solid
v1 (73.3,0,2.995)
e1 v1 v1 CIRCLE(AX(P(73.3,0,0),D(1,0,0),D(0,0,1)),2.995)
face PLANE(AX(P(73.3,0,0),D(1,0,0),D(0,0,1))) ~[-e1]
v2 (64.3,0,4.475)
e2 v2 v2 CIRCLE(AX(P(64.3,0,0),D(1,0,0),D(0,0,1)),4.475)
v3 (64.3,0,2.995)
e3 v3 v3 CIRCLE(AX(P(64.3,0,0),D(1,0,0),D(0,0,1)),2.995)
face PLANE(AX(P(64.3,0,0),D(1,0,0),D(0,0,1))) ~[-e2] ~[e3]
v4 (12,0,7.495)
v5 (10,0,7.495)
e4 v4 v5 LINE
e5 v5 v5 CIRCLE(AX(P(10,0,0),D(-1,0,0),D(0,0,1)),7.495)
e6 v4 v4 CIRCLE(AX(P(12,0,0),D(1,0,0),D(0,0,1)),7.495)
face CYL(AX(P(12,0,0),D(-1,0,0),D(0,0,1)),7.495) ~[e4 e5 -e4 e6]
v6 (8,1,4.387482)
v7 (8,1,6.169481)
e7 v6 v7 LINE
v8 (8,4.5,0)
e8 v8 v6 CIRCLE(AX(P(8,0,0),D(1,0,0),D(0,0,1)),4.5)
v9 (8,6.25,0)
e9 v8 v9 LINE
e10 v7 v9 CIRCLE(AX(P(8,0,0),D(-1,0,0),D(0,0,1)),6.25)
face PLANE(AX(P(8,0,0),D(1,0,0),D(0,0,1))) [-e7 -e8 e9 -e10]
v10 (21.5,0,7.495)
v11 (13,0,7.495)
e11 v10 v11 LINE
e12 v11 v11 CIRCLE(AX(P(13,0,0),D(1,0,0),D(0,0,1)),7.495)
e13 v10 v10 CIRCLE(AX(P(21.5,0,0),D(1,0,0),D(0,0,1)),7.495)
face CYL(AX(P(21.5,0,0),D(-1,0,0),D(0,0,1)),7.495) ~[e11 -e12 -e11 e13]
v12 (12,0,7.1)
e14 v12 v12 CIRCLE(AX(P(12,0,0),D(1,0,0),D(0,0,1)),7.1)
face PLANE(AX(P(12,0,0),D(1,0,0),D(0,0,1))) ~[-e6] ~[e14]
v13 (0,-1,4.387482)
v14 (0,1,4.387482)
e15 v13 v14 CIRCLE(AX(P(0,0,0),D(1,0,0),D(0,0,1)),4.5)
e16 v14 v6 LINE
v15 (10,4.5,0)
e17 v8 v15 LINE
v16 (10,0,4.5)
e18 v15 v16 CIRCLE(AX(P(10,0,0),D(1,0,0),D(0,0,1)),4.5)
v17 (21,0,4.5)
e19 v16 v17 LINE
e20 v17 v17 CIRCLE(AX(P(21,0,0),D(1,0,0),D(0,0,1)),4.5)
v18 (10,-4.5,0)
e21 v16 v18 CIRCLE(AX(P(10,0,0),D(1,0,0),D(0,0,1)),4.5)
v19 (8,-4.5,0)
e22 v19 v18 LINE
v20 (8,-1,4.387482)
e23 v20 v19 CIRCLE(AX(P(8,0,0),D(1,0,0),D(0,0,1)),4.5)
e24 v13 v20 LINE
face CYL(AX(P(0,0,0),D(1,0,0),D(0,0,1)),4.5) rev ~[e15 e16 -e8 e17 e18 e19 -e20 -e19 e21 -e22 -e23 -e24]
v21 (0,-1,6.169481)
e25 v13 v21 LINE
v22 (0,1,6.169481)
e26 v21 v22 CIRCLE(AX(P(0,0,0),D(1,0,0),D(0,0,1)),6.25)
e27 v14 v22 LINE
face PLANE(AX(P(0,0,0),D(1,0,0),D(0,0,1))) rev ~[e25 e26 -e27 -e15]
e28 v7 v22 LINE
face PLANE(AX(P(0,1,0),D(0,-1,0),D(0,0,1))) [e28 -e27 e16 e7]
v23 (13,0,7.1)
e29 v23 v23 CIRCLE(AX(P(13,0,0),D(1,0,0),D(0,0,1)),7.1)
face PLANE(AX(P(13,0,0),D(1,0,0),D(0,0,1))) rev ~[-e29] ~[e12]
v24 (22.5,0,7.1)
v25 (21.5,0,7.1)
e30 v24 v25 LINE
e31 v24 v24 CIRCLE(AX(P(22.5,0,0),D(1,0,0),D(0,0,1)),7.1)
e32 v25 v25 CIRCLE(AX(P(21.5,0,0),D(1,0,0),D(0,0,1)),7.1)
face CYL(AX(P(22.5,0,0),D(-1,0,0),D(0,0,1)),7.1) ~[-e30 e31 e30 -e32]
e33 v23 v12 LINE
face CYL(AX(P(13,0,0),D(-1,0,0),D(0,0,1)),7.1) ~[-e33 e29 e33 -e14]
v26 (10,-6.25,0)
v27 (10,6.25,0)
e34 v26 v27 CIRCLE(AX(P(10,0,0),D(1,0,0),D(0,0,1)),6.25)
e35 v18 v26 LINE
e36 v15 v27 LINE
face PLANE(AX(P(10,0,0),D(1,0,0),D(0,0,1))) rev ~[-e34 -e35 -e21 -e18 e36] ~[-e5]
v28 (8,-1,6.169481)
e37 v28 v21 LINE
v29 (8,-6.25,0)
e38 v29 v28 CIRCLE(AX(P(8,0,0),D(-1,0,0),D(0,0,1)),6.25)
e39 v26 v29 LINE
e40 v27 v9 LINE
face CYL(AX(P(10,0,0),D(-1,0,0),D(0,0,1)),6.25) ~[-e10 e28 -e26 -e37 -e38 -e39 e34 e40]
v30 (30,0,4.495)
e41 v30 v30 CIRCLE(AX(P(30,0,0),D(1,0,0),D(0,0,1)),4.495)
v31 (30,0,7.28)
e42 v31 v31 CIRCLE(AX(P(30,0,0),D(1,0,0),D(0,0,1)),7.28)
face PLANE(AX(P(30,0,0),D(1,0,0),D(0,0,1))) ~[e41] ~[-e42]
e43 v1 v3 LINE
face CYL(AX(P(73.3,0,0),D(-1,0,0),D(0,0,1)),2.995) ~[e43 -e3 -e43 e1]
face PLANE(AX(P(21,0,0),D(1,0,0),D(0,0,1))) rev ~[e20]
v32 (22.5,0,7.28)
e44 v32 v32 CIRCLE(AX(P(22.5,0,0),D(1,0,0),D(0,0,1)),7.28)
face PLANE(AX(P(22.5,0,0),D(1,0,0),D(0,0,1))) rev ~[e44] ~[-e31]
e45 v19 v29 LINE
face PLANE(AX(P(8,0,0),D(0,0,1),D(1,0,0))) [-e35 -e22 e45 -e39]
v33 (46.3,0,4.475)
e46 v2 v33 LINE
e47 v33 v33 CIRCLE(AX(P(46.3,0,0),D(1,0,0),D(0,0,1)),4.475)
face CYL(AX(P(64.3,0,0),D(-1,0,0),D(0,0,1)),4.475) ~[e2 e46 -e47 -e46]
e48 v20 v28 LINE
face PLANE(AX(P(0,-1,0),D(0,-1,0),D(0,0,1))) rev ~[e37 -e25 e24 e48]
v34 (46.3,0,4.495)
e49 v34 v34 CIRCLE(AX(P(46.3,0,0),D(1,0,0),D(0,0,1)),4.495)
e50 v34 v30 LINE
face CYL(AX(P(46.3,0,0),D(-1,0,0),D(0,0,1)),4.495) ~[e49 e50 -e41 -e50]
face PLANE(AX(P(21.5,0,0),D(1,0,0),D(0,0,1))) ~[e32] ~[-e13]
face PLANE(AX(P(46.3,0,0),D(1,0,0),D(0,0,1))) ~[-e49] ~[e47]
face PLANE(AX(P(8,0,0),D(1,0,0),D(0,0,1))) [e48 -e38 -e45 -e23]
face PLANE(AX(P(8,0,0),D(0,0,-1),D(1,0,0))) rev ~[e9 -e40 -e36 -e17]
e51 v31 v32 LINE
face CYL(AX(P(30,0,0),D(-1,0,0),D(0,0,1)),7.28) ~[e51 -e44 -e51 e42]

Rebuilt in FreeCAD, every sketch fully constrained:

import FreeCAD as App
import Part
import Sketcher
from FreeCAD import Vector

doc = App.newDocument("Part")
params = doc.addObject("Spreadsheet::Sheet", "Params")
for row, (alias, value) in enumerate([
    ("sketch1_width", "21 mm"),
    ("sketch1_width2", "9 mm"),
    ("sketch1_width3", "18 mm"),
    ("sketch1_width4", "1 mm"),
    ("sketch1_width5", "2 mm"),
    ("revolution_angle", "360 deg"),
    ("sketch2_width", "2 mm"),
    ("sketch2_height", "7.5 mm"),
    ("sketch3_width", "2 mm"),
    ("pocket2_length", "8 mm"),
], start=1):
    params.set(f"A{row}", alias)
    params.set(f"B{row}", "=" + value)
    params.setAlias(f"B{row}", alias)

body = doc.addObject("PartDesign::Body", "Body")

sketch1 = body.newObject("Sketcher::SketchObject", "Sketch")
sketch1.AttachmentSupport = (doc.getObject("XZ_Plane"), [""])
sketch1.MapMode = "FlatFace"
sketch1.addGeometry([
    Part.LineSegment(Vector(0, 6.25, 0), Vector(0, 4.5, 0)),
    Part.LineSegment(Vector(0, 4.5, 0), Vector(21, 4.5, 0)),
    Part.LineSegment(Vector(21, 4.5, 0), Vector(21, 0, 0)),
    Part.LineSegment(Vector(21, 0, 0), Vector(73.3, 0, 0)),
    Part.LineSegment(Vector(73.3, 0, 0), Vector(73.3, 2.995, 0)),
    Part.LineSegment(Vector(73.3, 2.995, 0), Vector(64.3, 2.995, 0)),
    Part.LineSegment(Vector(64.3, 2.995, 0), Vector(64.3, 4.475, 0)),
    Part.LineSegment(Vector(64.3, 4.475, 0), Vector(46.3, 4.475, 0)),
    Part.LineSegment(Vector(46.3, 4.475, 0), Vector(46.3, 4.495, 0)),
    Part.LineSegment(Vector(46.3, 4.495, 0), Vector(30, 4.495, 0)),
    Part.LineSegment(Vector(30, 4.495, 0), Vector(30, 7.28, 0)),
    Part.LineSegment(Vector(30, 7.28, 0), Vector(22.5, 7.28, 0)),
    Part.LineSegment(Vector(22.5, 7.28, 0), Vector(22.5, 7.1, 0)),
    Part.LineSegment(Vector(22.5, 7.1, 0), Vector(21.5, 7.1, 0)),
    Part.LineSegment(Vector(21.5, 7.1, 0), Vector(21.5, 7.495, 0)),
    Part.LineSegment(Vector(21.5, 7.495, 0), Vector(13, 7.495, 0)),
    Part.LineSegment(Vector(13, 7.495, 0), Vector(13, 7.1, 0)),
    Part.LineSegment(Vector(13, 7.1, 0), Vector(12, 7.1, 0)),
    Part.LineSegment(Vector(12, 7.1, 0), Vector(12, 7.495, 0)),
    Part.LineSegment(Vector(12, 7.495, 0), Vector(10, 7.495, 0)),
    Part.LineSegment(Vector(10, 7.495, 0), Vector(10, 6.25, 0)),
    Part.LineSegment(Vector(10, 6.25, 0), Vector(0, 6.25, 0)),
], False)
sketch1.addConstraint([
    Sketcher.Constraint("Coincident", 0, 2, 1, 1),
    Sketcher.Constraint("Coincident", 1, 2, 2, 1),
    Sketcher.Constraint("Coincident", 2, 2, 3, 1),
    Sketcher.Constraint("Coincident", 3, 2, 4, 1),
    Sketcher.Constraint("Coincident", 4, 2, 5, 1),
    Sketcher.Constraint("Coincident", 5, 2, 6, 1),
    Sketcher.Constraint("Coincident", 6, 2, 7, 1),
    Sketcher.Constraint("Coincident", 7, 2, 8, 1),
    Sketcher.Constraint("Coincident", 8, 2, 9, 1),
    Sketcher.Constraint("Coincident", 9, 2, 10, 1),
    Sketcher.Constraint("Coincident", 10, 2, 11, 1),
    Sketcher.Constraint("Coincident", 11, 2, 12, 1),
    Sketcher.Constraint("Coincident", 12, 2, 13, 1),
    Sketcher.Constraint("Coincident", 13, 2, 14, 1),
    Sketcher.Constraint("Coincident", 14, 2, 15, 1),
    Sketcher.Constraint("Coincident", 15, 2, 16, 1),
    Sketcher.Constraint("Coincident", 16, 2, 17, 1),
    Sketcher.Constraint("Coincident", 17, 2, 18, 1),
    Sketcher.Constraint("Coincident", 18, 2, 19, 1),
    Sketcher.Constraint("Coincident", 19, 2, 20, 1),
    Sketcher.Constraint("Coincident", 20, 2, 21, 1),
    Sketcher.Constraint("Coincident", 21, 2, 0, 1),
    Sketcher.Constraint("Vertical", 0),
    Sketcher.Constraint("Horizontal", 1),
    Sketcher.Constraint("Vertical", 2),
    Sketcher.Constraint("Horizontal", 3),
    Sketcher.Constraint("Vertical", 4),
    Sketcher.Constraint("Horizontal", 5),
    Sketcher.Constraint("Vertical", 6),
    Sketcher.Constraint("Horizontal", 7),
    Sketcher.Constraint("Vertical", 8),
    Sketcher.Constraint("Horizontal", 9),
    Sketcher.Constraint("Vertical", 10),
    Sketcher.Constraint("Horizontal", 11),
    Sketcher.Constraint("Vertical", 12),
    Sketcher.Constraint("Horizontal", 13),
    Sketcher.Constraint("Vertical", 14),
    Sketcher.Constraint("Horizontal", 15),
    Sketcher.Constraint("Vertical", 16),
    Sketcher.Constraint("Horizontal", 17),
    Sketcher.Constraint("Vertical", 18),
    Sketcher.Constraint("Horizontal", 19),
    Sketcher.Constraint("Vertical", 20),
    Sketcher.Constraint("Horizontal", 21),
    Sketcher.Constraint("PointOnObject", 0, 2, -2),
    Sketcher.Constraint("PointOnObject", 2, 2, -1),
    Sketcher.Constraint("Horizontal", 13, 2, 16, 2),
    Sketcher.Constraint("Horizontal", 15, 2, 18, 2),
    Sketcher.Constraint("Equal", 13, 17),
    Sketcher.Constraint("DistanceX", 1, 1, 1, 2, 21.0),
    Sketcher.Constraint("DistanceX", 5, 2, 5, 1, 9.0),
    Sketcher.Constraint("DistanceX", 7, 2, 7, 1, 18.0),
    Sketcher.Constraint("DistanceX", 13, 2, 13, 1, 1.0),
    Sketcher.Constraint("DistanceX", 19, 2, 19, 1, 2.0),
    Sketcher.Constraint("DistanceX", 21, 2, 21, 1, 10.0),
    Sketcher.Constraint("DistanceX", 3, 1, 3, 2, 52.3),
    Sketcher.Constraint("DistanceX", 9, 2, 9, 1, 16.3),
    Sketcher.Constraint("DistanceX", 11, 2, 11, 1, 7.5),
    Sketcher.Constraint("DistanceY", 2, 2, 2, 1, 4.5),
    Sketcher.Constraint("DistanceY", 0, 2, 0, 1, 1.75),
    Sketcher.Constraint("DistanceY", 6, 1, 6, 2, 1.48),
    Sketcher.Constraint("DistanceY", 8, 1, 8, 2, 0.02),
    Sketcher.Constraint("DistanceY", 12, 2, 12, 1, 0.18),
    Sketcher.Constraint("DistanceY", -1, 1, 12, 2, 7.1),
    Sketcher.Constraint("DistanceY", 4, 1, 4, 2, 2.995),
    Sketcher.Constraint("DistanceY", 14, 1, 14, 2, 0.395),
])
sketch1.setExpression("Constraints[49]", "Params.sketch1_width")
sketch1.setExpression("Constraints[50]", "Params.sketch1_width2")
sketch1.setExpression("Constraints[51]", "Params.sketch1_width3")
sketch1.setExpression("Constraints[52]", "Params.sketch1_width4")
sketch1.setExpression("Constraints[53]", "Params.sketch1_width5")
revolution = body.newObject("PartDesign::Revolution", "Revolution")
revolution.Profile = sketch1
revolution.ReferenceAxis = (sketch1, ["H_Axis"])
revolution.setExpression("Angle", "Params.revolution_angle")

sketch2 = body.newObject("Sketcher::SketchObject", "Sketch001")
sketch2.AttachmentSupport = (doc.getObject("XZ_Plane"), [""])
sketch2.MapMode = "FlatFace"
sketch2.addGeometry([
    Part.LineSegment(Vector(8, 7.5, 0), Vector(8, 0, 0)),
    Part.LineSegment(Vector(8, 0, 0), Vector(10, 0, 0)),
    Part.LineSegment(Vector(10, 0, 0), Vector(10, 7.5, 0)),
    Part.LineSegment(Vector(10, 7.5, 0), Vector(8, 7.5, 0)),
], False)
sketch2.addConstraint([
    Sketcher.Constraint("Coincident", 0, 2, 1, 1),
    Sketcher.Constraint("Coincident", 1, 2, 2, 1),
    Sketcher.Constraint("Coincident", 2, 2, 3, 1),
    Sketcher.Constraint("Coincident", 3, 2, 0, 1),
    Sketcher.Constraint("Vertical", 0),
    Sketcher.Constraint("Horizontal", 1),
    Sketcher.Constraint("Vertical", 2),
    Sketcher.Constraint("Horizontal", 3),
    Sketcher.Constraint("PointOnObject", 0, 2, -1),
    Sketcher.Constraint("DistanceX", 1, 1, 1, 2, 2.0),
    Sketcher.Constraint("DistanceY", 0, 2, 0, 1, 7.5),
    Sketcher.Constraint("DistanceX", -1, 1, 0, 2, 8.0),
])
sketch2.setExpression("Constraints[9]", "Params.sketch2_width")
sketch2.setExpression("Constraints[10]", "Params.sketch2_height")
pocket1 = body.newObject("PartDesign::Pocket", "Pocket")
pocket1.Profile = sketch2
pocket1.Type = "ThroughAll"
pocket1.Midplane = True

sketch3 = body.newObject("Sketcher::SketchObject", "Sketch002")
sketch3.AttachmentSupport = (doc.getObject("YZ_Plane"), [""])
sketch3.MapMode = "FlatFace"
sketch3.addGeometry([
    Part.LineSegment(Vector(1, 7.5, 0), Vector(1, 0, 0)),
    Part.LineSegment(Vector(1, 0, 0), Vector(-1, 0, 0)),
    Part.LineSegment(Vector(-1, 0, 0), Vector(-1, 7.5, 0)),
    Part.LineSegment(Vector(-1, 7.5, 0), Vector(1, 7.5, 0)),
], False)
sketch3.addConstraint([
    Sketcher.Constraint("Coincident", 0, 2, 1, 1),
    Sketcher.Constraint("Coincident", 1, 2, 2, 1),
    Sketcher.Constraint("Coincident", 2, 2, 3, 1),
    Sketcher.Constraint("Coincident", 3, 2, 0, 1),
    Sketcher.Constraint("Vertical", 0),
    Sketcher.Constraint("Horizontal", 1),
    Sketcher.Constraint("Vertical", 2),
    Sketcher.Constraint("Horizontal", 3),
    Sketcher.Constraint("Symmetric", 0, 2, 1, 2, -1, 1),
    Sketcher.Constraint("DistanceX", 1, 2, 1, 1, 2.0),
    Sketcher.Constraint("DistanceY", 0, 2, 0, 1, 7.495),
])
sketch3.setExpression("Constraints[9]", "Params.sketch3_width")
pocket2 = body.newObject("PartDesign::Pocket", "Pocket001")
pocket2.Profile = sketch3
pocket2.setExpression("Length", "Params.pocket2_length")
pocket2.Reversed = True

doc.recompute()
